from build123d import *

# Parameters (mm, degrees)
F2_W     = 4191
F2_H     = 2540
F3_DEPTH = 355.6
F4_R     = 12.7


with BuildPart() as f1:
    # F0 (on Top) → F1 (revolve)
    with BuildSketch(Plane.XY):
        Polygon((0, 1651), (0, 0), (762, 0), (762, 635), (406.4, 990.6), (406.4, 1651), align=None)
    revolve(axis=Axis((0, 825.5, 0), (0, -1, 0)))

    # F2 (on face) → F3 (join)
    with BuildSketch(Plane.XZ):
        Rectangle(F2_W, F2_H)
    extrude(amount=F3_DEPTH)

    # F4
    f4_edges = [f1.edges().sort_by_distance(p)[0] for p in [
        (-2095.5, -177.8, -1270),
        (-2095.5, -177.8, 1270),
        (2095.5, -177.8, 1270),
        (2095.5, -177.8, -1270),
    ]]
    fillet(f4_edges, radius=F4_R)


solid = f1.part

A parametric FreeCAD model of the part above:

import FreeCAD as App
import Part
import Sketcher
from FreeCAD import Vector
Q = App.Units.Quantity


def edges_at(feature, points):
    """Names of the edges that pass closest to the given points."""
    edges = feature.Shape.Edges
    near = lambda p: min(range(len(edges)), key=lambda i: edges[i].distToShape(Part.Vertex(*p))[0])
    return sorted({f"Edge{near(p) + 1}" for p in points})

doc = App.newDocument("Part")
body = doc.addObject("PartDesign::Body", "Body")

# Sketch on XY plane
sketch1 = body.newObject("Sketcher::SketchObject", "Sketch")
sketch1.AttachmentSupport = (doc.getObject("XY_Plane"), [""])
sketch1.MapMode = "FlatFace"
sketch1.addGeometry([
    Part.LineSegment(Vector(0, 1651, 0), Vector(0, 0, 0)),  # 0
    Part.LineSegment(Vector(0, 0, 0), Vector(762, 0, 0)),  # 1
    Part.LineSegment(Vector(762, 0, 0), Vector(762, 635, 0)),  # 2
    Part.LineSegment(Vector(762, 635, 0), Vector(406, 991, 0)),  # 3
    Part.LineSegment(Vector(406, 991, 0), Vector(406, 1651, 0)),  # 4
    Part.LineSegment(Vector(406, 1651, 0), Vector(0, 1651, 0)),  # 5
], False)
sketch1.addConstraint([
    Sketcher.Constraint("Coincident", 0, 2, 1, 1),
    Sketcher.Constraint("Coincident", 1, 2, 2, 1),
    Sketcher.Constraint("Coincident", 2, 2, 3, 1),
    Sketcher.Constraint("Coincident", 3, 2, 4, 1),
    Sketcher.Constraint("Coincident", 4, 2, 5, 1),
    Sketcher.Constraint("Coincident", 5, 2, 0, 1),
    Sketcher.Constraint("Vertical", 0),
    Sketcher.Constraint("Horizontal", 1),
    Sketcher.Constraint("Vertical", 2),
    Sketcher.Constraint("Vertical", 4),
    Sketcher.Constraint("Horizontal", 5),
    Sketcher.Constraint("Coincident", 0, 2, -1, 1),
    Sketcher.Constraint("DistanceX", 1, 1, 1, 2, Q("30 in")),
    Sketcher.Constraint("DistanceX", 5, 2, 5, 1, Q("16 in")),
    Sketcher.Constraint("DistanceY", 0, 2, 0, 1, Q("65 in")),
    Sketcher.Constraint("DistanceY", 2, 1, 2, 2, Q("25 in")),
    Sketcher.Constraint("DistanceY", 4, 1, 4, 2, Q("26 in")),
])
revolution = body.newObject("PartDesign::Revolution", "Revolution")
revolution.Profile = sketch1
revolution.ReferenceAxis = (sketch1, ["V_Axis"])
revolution.Angle = 360

# Sketch on XZ plane
sketch2 = body.newObject("Sketcher::SketchObject", "Sketch001")
sketch2.AttachmentSupport = (doc.getObject("XZ_Plane"), [""])
sketch2.MapMode = "FlatFace"
sketch2.addGeometry([
    Part.LineSegment(Vector(-2096, 1270, 0), Vector(-2096, -1270, 0)),
    Part.LineSegment(Vector(-2096, -1270, 0), Vector(2096, -1270, 0)),
    Part.LineSegment(Vector(2096, -1270, 0), Vector(2096, 1270, 0)),
    Part.LineSegment(Vector(2096, 1270, 0), Vector(-2096, 1270, 0)),
], False)
sketch2.addConstraint([
    Sketcher.Constraint("Coincident", 0, 2, 1, 1),
    Sketcher.Constraint("Coincident", 1, 2, 2, 1),
    Sketcher.Constraint("Coincident", 2, 2, 3, 1),
    Sketcher.Constraint("Coincident", 3, 2, 0, 1),
    Sketcher.Constraint("Vertical", 0),
    Sketcher.Constraint("Horizontal", 1),
    Sketcher.Constraint("Vertical", 2),
    Sketcher.Constraint("Horizontal", 3),
    Sketcher.Constraint("Symmetric", 0, 2, 2, 2, -1, 1),
    Sketcher.Constraint("DistanceX", 1, 1, 1, 2, Q("165 in")),
    Sketcher.Constraint("DistanceY", 0, 2, 0, 1, Q("100 in")),
])
pad1 = body.newObject("PartDesign::Pad", "Pad")
pad1.Profile = sketch2
pad1.Length = Q("14 in")
doc.recompute()

fillet = body.newObject("PartDesign::Fillet", "Fillet")
fillet.Base = (pad1, edges_at(pad1, [
    (-2095.5, -177.8, -1270),
    (-2095.5, -177.8, 1270),
    (2095.5, -177.8, 1270),
    (2095.5, -177.8, -1270),
]))
fillet.Radius = Q("0.5 in")

doc.recompute()
